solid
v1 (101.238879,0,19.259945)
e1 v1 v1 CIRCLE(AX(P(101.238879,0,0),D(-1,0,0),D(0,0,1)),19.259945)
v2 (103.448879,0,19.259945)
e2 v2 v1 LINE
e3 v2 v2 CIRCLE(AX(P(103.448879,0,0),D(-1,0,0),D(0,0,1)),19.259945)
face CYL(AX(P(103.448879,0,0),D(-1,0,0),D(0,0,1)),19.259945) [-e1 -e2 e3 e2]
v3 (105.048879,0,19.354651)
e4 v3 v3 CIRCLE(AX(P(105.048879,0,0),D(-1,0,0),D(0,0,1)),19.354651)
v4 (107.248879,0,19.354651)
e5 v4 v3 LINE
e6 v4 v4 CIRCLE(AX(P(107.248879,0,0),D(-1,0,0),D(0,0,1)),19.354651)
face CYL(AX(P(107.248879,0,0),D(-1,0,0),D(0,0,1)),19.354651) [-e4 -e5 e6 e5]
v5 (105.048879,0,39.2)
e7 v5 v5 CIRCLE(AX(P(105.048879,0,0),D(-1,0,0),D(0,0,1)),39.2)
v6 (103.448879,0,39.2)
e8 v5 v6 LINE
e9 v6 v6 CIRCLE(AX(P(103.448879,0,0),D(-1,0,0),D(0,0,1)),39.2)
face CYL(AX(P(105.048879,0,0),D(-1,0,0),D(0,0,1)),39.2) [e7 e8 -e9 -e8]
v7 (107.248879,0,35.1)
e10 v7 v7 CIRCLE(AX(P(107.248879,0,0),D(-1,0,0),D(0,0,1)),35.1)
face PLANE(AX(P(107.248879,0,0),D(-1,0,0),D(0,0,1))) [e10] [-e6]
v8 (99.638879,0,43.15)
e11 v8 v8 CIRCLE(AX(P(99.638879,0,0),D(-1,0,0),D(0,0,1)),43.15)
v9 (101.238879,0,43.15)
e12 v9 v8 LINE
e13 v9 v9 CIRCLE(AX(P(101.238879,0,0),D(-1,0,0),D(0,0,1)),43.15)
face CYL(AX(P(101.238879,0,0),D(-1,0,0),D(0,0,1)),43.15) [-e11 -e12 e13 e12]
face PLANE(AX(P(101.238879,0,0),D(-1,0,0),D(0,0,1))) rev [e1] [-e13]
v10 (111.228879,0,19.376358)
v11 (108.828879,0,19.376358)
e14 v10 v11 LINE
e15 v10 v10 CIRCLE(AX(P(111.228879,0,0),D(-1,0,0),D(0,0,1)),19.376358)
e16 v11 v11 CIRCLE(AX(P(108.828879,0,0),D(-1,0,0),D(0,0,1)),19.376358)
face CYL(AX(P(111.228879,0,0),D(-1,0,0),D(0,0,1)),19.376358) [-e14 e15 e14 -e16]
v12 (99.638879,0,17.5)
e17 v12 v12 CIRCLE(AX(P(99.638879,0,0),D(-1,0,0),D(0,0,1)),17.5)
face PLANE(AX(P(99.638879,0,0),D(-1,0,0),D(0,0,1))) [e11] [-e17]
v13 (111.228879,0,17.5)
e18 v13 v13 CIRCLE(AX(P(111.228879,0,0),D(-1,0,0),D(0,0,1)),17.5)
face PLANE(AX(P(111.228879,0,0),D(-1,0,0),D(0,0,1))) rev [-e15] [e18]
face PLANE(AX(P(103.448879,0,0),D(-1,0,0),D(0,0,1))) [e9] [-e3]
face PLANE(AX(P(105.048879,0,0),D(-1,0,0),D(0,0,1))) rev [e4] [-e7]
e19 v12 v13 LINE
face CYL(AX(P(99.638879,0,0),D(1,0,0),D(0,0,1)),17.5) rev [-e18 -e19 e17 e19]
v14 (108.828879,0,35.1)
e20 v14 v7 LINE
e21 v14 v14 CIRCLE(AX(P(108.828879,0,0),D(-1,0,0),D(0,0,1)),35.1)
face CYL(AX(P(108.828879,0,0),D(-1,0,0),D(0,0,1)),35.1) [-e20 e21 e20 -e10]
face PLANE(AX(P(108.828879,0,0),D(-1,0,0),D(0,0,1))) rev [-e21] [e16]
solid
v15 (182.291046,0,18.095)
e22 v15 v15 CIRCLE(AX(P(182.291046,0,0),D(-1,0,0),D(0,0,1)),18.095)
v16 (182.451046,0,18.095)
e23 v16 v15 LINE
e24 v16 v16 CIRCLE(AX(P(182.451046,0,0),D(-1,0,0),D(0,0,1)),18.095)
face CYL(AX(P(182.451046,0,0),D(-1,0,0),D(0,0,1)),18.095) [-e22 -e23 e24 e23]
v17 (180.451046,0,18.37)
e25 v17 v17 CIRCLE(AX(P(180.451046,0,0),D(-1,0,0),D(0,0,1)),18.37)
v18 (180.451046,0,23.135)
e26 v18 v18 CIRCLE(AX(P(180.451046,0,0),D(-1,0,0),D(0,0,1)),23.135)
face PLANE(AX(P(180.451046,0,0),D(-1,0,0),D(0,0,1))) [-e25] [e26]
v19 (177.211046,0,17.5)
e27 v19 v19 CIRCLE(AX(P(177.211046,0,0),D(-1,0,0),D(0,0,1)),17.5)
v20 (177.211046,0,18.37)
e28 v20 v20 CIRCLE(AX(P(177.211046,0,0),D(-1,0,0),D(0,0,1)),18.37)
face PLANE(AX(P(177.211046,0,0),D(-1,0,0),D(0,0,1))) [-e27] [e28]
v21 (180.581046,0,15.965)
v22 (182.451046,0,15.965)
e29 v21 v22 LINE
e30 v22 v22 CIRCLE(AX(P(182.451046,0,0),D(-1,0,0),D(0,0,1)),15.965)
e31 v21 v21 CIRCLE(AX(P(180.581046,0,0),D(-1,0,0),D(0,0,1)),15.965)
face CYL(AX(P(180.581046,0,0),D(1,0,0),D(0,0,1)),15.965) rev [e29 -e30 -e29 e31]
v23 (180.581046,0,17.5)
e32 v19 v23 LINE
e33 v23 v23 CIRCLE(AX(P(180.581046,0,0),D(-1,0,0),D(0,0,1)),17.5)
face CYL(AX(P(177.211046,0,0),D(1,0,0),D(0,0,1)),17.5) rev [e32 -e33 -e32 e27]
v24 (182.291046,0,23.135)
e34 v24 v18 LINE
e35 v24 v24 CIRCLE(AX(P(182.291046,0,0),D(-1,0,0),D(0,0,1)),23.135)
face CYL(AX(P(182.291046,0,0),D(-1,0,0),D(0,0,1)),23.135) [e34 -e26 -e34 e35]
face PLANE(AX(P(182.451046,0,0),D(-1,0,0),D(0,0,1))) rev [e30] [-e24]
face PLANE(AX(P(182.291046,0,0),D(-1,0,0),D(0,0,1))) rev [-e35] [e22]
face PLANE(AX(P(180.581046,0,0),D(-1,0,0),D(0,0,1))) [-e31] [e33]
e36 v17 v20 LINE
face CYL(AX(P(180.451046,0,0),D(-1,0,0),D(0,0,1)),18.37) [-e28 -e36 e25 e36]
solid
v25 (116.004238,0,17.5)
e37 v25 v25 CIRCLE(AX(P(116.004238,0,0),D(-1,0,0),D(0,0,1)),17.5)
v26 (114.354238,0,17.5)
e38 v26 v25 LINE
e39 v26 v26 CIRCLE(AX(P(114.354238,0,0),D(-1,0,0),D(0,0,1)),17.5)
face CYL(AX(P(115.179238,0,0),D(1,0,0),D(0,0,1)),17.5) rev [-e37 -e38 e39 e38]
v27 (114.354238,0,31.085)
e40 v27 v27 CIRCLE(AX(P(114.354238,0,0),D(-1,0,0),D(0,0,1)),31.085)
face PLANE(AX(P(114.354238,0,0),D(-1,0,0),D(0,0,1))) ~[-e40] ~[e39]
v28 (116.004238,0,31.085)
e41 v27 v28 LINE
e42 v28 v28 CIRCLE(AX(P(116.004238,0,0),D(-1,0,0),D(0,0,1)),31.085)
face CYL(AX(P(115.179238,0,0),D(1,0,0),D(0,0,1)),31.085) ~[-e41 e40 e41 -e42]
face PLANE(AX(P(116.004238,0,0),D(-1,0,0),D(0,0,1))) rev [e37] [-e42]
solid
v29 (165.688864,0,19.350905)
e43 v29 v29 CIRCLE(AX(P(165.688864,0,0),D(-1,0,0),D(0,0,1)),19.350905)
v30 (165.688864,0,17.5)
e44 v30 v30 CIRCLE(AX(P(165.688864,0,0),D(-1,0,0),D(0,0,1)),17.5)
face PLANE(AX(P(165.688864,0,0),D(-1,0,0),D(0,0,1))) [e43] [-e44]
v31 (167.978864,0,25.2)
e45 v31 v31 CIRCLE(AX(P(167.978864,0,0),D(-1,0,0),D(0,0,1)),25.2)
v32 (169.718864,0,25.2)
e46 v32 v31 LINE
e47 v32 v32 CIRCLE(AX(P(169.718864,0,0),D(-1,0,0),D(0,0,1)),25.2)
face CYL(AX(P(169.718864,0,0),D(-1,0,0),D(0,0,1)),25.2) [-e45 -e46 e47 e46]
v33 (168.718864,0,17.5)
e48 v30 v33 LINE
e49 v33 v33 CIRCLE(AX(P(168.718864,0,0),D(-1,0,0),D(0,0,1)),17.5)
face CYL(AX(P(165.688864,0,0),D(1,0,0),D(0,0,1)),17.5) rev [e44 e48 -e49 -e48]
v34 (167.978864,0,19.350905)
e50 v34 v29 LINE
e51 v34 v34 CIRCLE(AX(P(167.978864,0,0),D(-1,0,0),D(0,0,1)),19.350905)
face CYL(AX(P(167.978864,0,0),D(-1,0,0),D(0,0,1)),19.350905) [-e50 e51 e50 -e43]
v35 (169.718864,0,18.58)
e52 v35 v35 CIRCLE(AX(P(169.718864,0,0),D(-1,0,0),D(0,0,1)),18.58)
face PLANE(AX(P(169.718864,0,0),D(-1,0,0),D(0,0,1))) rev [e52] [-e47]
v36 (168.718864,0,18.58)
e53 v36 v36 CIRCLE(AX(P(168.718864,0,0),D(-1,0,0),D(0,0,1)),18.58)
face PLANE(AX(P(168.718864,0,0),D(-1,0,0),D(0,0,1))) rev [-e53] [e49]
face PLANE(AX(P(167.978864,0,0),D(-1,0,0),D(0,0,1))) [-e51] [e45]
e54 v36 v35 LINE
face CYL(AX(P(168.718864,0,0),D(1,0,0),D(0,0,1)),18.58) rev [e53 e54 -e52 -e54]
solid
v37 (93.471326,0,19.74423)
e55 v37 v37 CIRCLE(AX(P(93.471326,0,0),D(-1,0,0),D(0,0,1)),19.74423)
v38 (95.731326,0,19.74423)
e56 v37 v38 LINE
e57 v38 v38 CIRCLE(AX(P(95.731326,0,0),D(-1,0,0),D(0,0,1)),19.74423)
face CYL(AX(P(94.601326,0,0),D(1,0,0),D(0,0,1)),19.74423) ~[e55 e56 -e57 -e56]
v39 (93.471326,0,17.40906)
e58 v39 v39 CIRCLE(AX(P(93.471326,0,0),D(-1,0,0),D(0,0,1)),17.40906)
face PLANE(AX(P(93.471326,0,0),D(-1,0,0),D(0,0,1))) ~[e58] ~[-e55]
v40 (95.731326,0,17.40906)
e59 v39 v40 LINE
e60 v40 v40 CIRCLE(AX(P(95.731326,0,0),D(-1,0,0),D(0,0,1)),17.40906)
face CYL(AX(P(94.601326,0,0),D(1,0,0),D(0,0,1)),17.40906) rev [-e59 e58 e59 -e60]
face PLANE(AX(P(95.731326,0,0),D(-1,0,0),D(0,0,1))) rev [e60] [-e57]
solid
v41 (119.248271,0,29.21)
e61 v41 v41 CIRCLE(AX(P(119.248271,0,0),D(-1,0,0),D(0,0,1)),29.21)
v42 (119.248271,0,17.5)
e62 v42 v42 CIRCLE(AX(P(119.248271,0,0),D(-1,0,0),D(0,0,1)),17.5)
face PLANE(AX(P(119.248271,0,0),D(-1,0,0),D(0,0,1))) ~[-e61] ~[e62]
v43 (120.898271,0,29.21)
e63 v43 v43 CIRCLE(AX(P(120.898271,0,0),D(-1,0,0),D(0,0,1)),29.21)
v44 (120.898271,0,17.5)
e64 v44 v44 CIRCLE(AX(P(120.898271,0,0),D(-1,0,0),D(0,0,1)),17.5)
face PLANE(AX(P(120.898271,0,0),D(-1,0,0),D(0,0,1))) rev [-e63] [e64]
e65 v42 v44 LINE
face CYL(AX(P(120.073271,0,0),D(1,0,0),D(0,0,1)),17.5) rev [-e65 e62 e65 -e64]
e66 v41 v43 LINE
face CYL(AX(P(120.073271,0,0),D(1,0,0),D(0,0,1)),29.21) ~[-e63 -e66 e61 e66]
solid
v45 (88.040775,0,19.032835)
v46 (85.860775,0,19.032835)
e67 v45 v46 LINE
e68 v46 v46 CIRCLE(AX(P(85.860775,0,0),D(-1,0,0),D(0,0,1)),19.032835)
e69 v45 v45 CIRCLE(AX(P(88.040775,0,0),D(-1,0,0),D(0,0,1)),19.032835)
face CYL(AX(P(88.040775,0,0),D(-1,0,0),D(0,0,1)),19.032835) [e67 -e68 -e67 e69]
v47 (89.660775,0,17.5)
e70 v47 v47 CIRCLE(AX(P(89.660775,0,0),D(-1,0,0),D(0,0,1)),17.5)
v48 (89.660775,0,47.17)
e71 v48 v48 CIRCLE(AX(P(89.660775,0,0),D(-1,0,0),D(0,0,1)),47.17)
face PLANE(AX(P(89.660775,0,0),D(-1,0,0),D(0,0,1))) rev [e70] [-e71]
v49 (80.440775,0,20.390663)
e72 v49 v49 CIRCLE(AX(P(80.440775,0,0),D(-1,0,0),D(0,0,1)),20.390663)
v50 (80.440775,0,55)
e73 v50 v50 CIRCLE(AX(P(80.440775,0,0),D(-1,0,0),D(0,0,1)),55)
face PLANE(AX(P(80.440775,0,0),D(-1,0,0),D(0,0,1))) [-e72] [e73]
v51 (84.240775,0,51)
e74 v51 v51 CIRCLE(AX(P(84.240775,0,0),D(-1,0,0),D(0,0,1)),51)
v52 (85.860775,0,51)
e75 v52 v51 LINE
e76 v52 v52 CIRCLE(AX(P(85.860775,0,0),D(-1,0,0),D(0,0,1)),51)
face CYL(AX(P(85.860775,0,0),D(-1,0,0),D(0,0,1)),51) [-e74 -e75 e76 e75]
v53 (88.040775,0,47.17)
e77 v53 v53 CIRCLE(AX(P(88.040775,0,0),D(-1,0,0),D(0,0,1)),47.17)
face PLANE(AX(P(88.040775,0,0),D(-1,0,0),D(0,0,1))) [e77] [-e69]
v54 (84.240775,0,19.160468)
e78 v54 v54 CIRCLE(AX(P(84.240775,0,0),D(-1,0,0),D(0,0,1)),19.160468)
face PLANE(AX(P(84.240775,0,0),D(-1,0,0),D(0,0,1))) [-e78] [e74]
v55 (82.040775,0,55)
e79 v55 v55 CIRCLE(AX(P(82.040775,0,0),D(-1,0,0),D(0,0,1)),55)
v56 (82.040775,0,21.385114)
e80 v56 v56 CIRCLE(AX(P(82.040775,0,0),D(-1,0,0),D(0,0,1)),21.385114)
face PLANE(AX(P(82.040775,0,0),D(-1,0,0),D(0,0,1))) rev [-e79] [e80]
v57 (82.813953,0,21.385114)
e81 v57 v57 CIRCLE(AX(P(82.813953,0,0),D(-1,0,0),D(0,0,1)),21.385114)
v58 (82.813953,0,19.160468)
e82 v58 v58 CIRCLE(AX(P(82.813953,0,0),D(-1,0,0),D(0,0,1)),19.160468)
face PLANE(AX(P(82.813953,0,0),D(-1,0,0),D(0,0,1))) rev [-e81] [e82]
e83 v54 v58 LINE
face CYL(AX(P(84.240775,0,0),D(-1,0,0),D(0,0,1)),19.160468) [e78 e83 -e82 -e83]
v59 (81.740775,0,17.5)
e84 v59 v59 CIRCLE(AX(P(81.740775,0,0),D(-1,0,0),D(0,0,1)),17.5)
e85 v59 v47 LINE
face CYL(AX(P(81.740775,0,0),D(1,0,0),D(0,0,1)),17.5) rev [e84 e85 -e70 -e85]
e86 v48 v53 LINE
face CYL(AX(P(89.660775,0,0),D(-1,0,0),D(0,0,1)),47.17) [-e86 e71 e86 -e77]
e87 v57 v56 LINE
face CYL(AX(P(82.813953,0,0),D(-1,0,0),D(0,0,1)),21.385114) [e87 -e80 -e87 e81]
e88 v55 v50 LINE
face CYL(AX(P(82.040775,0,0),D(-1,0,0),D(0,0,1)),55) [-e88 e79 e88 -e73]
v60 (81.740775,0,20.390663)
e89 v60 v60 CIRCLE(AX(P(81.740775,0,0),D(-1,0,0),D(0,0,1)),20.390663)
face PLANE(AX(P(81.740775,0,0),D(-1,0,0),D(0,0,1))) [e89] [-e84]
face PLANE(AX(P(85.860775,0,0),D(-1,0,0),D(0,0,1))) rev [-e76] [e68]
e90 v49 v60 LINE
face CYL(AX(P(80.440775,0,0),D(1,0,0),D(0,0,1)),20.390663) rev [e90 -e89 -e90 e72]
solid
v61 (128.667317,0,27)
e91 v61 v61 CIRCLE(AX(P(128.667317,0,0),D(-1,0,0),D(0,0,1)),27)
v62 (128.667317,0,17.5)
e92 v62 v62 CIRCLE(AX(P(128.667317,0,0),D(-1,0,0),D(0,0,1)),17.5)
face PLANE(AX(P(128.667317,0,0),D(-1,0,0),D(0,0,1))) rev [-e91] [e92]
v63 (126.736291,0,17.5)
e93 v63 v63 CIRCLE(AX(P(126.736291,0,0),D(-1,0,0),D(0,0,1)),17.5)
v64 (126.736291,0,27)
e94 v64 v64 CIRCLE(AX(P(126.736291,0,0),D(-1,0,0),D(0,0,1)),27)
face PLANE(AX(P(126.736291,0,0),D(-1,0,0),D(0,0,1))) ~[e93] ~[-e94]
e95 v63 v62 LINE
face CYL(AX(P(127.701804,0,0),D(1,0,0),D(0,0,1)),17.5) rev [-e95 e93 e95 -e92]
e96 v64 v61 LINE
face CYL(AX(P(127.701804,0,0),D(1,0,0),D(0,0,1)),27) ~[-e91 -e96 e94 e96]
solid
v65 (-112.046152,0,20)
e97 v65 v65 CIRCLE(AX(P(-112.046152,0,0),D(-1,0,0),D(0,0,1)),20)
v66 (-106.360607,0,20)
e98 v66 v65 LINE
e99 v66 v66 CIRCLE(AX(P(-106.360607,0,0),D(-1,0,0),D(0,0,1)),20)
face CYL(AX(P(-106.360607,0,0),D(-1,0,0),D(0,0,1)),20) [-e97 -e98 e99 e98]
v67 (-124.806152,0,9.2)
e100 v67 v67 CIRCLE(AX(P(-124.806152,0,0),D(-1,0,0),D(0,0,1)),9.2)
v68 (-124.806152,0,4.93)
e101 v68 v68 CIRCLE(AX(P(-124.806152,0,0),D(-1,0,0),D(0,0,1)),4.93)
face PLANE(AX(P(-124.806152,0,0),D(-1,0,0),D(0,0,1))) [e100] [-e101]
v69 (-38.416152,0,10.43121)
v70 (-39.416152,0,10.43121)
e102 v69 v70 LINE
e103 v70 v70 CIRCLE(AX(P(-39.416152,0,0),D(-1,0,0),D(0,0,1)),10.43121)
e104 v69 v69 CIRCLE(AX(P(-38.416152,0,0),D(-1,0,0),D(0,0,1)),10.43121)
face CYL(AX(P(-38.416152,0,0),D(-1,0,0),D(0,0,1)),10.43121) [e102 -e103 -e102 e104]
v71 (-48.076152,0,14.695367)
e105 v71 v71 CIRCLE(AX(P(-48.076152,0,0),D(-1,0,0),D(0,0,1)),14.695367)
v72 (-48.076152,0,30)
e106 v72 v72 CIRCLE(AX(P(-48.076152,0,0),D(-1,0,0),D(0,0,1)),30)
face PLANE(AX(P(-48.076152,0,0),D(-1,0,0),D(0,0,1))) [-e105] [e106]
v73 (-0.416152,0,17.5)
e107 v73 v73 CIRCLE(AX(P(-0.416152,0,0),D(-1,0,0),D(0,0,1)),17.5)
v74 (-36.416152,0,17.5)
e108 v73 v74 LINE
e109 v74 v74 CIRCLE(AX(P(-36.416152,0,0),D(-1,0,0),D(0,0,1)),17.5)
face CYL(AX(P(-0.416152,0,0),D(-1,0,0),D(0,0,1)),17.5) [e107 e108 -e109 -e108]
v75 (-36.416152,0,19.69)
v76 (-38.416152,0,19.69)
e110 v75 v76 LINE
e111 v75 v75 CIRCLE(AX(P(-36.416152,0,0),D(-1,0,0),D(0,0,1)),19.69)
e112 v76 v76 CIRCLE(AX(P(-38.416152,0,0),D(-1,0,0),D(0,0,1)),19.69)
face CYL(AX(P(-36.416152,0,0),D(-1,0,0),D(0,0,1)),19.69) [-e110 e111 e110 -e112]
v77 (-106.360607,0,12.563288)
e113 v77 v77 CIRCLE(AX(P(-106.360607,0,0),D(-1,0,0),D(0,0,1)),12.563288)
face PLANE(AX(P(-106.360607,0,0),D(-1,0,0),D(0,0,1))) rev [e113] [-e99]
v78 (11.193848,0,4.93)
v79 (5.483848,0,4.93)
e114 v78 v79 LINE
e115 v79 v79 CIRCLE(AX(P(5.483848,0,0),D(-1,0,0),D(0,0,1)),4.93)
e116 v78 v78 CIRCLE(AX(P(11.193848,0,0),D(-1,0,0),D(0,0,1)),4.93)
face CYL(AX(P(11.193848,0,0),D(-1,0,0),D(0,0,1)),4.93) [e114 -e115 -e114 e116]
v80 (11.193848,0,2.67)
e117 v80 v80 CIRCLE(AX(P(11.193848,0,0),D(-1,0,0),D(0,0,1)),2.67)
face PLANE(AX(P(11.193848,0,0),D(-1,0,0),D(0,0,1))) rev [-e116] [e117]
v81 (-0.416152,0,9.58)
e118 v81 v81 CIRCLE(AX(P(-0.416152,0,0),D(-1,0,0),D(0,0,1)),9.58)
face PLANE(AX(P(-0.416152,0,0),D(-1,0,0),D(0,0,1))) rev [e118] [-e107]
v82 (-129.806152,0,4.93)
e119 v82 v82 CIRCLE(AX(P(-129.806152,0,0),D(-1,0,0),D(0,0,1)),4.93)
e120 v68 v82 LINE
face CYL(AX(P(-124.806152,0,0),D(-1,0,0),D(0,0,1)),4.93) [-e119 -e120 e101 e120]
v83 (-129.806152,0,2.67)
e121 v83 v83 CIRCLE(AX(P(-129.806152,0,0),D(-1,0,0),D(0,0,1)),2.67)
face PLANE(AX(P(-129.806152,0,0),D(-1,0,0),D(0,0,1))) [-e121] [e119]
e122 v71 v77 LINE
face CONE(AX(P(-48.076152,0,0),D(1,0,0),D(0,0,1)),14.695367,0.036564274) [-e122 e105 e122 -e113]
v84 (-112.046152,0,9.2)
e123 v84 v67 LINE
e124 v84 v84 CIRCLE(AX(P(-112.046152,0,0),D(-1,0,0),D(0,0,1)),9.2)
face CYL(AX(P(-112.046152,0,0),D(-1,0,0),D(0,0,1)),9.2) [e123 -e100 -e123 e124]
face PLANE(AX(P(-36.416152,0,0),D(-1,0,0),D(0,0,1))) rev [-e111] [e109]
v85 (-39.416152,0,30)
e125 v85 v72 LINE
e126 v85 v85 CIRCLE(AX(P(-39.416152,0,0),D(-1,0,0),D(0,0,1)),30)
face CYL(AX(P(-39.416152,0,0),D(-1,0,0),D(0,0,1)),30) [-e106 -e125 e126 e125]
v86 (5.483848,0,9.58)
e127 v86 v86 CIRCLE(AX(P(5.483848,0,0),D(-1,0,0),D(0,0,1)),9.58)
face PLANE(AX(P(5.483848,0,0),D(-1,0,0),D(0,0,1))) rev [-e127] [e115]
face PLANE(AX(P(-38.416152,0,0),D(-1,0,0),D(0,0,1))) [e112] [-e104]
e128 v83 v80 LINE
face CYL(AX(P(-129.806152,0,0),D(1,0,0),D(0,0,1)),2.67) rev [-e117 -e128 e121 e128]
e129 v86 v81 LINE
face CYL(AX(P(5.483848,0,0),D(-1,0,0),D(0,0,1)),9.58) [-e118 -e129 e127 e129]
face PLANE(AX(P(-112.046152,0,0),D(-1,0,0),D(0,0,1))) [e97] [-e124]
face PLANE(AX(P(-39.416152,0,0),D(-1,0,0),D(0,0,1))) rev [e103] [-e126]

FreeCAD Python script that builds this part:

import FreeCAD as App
import Part
import Sketcher

V = App.Vector

doc = App.newDocument("Part")
params = doc.addObject("Spreadsheet::Sheet", "Params")
for row, (alias, value) in enumerate([
    ("sketch1_width", "5 mm"),
    ("sketch1_width2", "141 mm"),
    ("sketch1_width3", "36 mm"),
    ("sketch1_width4", "2 mm"),
    ("sketch1_width5", "1 mm"),
    ("revolution_angle", "360 deg"),
    ("sketch2_width", "1.6 mm"),
    ("sketch2_width2", "1.3 mm"),
    ("sketch2_width3", "7.92 mm"),
    ("sketch2_width4", "2.18 mm"),
    ("sketch2_height", "29.67 mm"),
    ("revolution2_angle", "360 deg"),
    ("sketch3_width", "2.4 mm"),
    ("sketch3_width2", "2.2 mm"),
    ("sketch3_width3", "1.6 mm"),
    ("sketch3_width4", "11.59 mm"),
    ("sketch3_width5", "1.58 mm"),
    ("revolution3_angle", "360 deg"),
    ("sketch4_width", "2.26 mm"),
    ("revolution4_angle", "360 deg"),
    ("sketch5_width", "1.65 mm"),
    ("revolution5_angle", "360 deg"),
    ("sketch6_width", "1.65 mm"),
    ("sketch6_height", "11.71 mm"),
    ("revolution6_angle", "360 deg"),
    ("sketch7_height", "9.5 mm"),
    ("revolution7_angle", "360 deg"),
    ("sketch8_width", "1 mm"),
    ("sketch8_width2", "2.29 mm"),
    ("sketch8_width3", "3.03 mm"),
    ("sketch8_height", "1.08 mm"),
    ("sketch8_height2", "6.62 mm"),
    ("revolution8_angle", "360 deg"),
    ("sketch9_width", "3.24 mm"),
    ("sketch9_width2", "3.37 mm"),
    ("sketch9_width3", "0.16 mm"),
    ("sketch9_height", "0.87 mm"),
    ("sketch9_height2", "2.13 mm"),
    ("revolution9_angle", "360 deg"),
], start=1):
    params.set(f"A{row}", alias)
    params.set(f"B{row}", "=" + value)
    params.setAlias(f"B{row}", alias)

body = doc.addObject("PartDesign::Body", "Body")

# Sketch on XZ plane
sketch1 = doc.addObject("Sketcher::SketchObject", "Sketch")
body.addObject(sketch1)
sketch1.AttachmentSupport = (doc.XZ_Plane, [""])
sketch1.MapMode = "FlatFace"
sketch1.addGeometry(Part.LineSegment(V(-124.8, 4.9, 0), V(-129.8, 4.9, 0)), False)
sketch1.addGeometry(Part.LineSegment(V(-129.8, 4.9, 0), V(-129.8, 2.7, 0)), False)
sketch1.addGeometry(Part.LineSegment(V(-129.8, 2.7, 0), V(11.2, 2.7, 0)), False)
sketch1.addGeometry(Part.LineSegment(V(11.2, 2.7, 0), V(11.2, 4.9, 0)), False)
sketch1.addGeometry(Part.LineSegment(V(11.2, 4.9, 0), V(5.5, 4.9, 0)), False)
sketch1.addGeometry(Part.LineSegment(V(5.5, 4.9, 0), V(5.5, 9.6, 0)), False)
sketch1.addGeometry(Part.LineSegment(V(5.5, 9.6, 0), V(-0.4, 9.6, 0)), False)
sketch1.addGeometry(Part.LineSegment(V(-0.4, 9.6, 0), V(-0.4, 17.5, 0)), False)
sketch1.addGeometry(Part.LineSegment(V(-0.4, 17.5, 0), V(-36.4, 17.5, 0)), False)
sketch1.addGeometry(Part.LineSegment(V(-36.4, 17.5, 0), V(-36.4, 19.7, 0)), False)
sketch1.addGeometry(Part.LineSegment(V(-36.4, 19.7, 0), V(-38.4, 19.7, 0)), False)
sketch1.addGeometry(Part.LineSegment(V(-38.4, 19.7, 0), V(-38.4, 10.4, 0)), False)
sketch1.addGeometry(Part.LineSegment(V(-38.4, 10.4, 0), V(-39.4, 10.4, 0)), False)
sketch1.addGeometry(Part.LineSegment(V(-39.4, 10.4, 0), V(-39.4, 30, 0)), False)
sketch1.addGeometry(Part.LineSegment(V(-39.4, 30, 0), V(-48.1, 30, 0)), False)
sketch1.addGeometry(Part.LineSegment(V(-48.1, 30, 0), V(-48.1, 14.7, 0)), False)
sketch1.addGeometry(Part.LineSegment(V(-48.1, 14.7, 0), V(-106.4, 12.6, 0)), False)
sketch1.addGeometry(Part.LineSegment(V(-106.4, 12.6, 0), V(-106.4, 20, 0)), False)
sketch1.addGeometry(Part.LineSegment(V(-106.4, 20, 0), V(-112, 20, 0)), False)
sketch1.addGeometry(Part.LineSegment(V(-112, 20, 0), V(-112, 9.2, 0)), False)
sketch1.addGeometry(Part.LineSegment(V(-112, 9.2, 0), V(-124.8, 9.2, 0)), False)
sketch1.addGeometry(Part.LineSegment(V(-124.8, 9.2, 0), V(-124.8, 4.9, 0)), False)
sketch1.addConstraint(Sketcher.Constraint("Coincident", 0, 2, 1, 1))
sketch1.addConstraint(Sketcher.Constraint("Coincident", 1, 2, 2, 1))
sketch1.addConstraint(Sketcher.Constraint("Coincident", 2, 2, 3, 1))
sketch1.addConstraint(Sketcher.Constraint("Coincident", 3, 2, 4, 1))
sketch1.addConstraint(Sketcher.Constraint("Coincident", 4, 2, 5, 1))
sketch1.addConstraint(Sketcher.Constraint("Coincident", 5, 2, 6, 1))
sketch1.addConstraint(Sketcher.Constraint("Coincident", 6, 2, 7, 1))
sketch1.addConstraint(Sketcher.Constraint("Coincident", 7, 2, 8, 1))
sketch1.addConstraint(Sketcher.Constraint("Coincident", 8, 2, 9, 1))
sketch1.addConstraint(Sketcher.Constraint("Coincident", 9, 2, 10, 1))
sketch1.addConstraint(Sketcher.Constraint("Coincident", 10, 2, 11, 1))
sketch1.addConstraint(Sketcher.Constraint("Coincident", 11, 2, 12, 1))
sketch1.addConstraint(Sketcher.Constraint("Coincident", 12, 2, 13, 1))
sketch1.addConstraint(Sketcher.Constraint("Coincident", 13, 2, 14, 1))
sketch1.addConstraint(Sketcher.Constraint("Coincident", 14, 2, 15, 1))
sketch1.addConstraint(Sketcher.Constraint("Coincident", 15, 2, 16, 1))
sketch1.addConstraint(Sketcher.Constraint("Coincident", 16, 2, 17, 1))
sketch1.addConstraint(Sketcher.Constraint("Coincident", 17, 2, 18, 1))
sketch1.addConstraint(Sketcher.Constraint("Coincident", 18, 2, 19, 1))
sketch1.addConstraint(Sketcher.Constraint("Coincident", 19, 2, 20, 1))
sketch1.addConstraint(Sketcher.Constraint("Coincident", 20, 2, 21, 1))
sketch1.addConstraint(Sketcher.Constraint("Coincident", 21, 2, 0, 1))
sketch1.addConstraint(Sketcher.Constraint("Horizontal", 0))
sketch1.addConstraint(Sketcher.Constraint("Vertical", 1))
sketch1.addConstraint(Sketcher.Constraint("Horizontal", 2))
sketch1.addConstraint(Sketcher.Constraint("Vertical", 3))
sketch1.addConstraint(Sketcher.Constraint("Horizontal", 4))
sketch1.addConstraint(Sketcher.Constraint("Vertical", 5))
sketch1.addConstraint(Sketcher.Constraint("Horizontal", 6))
sketch1.addConstraint(Sketcher.Constraint("Vertical", 7))
sketch1.addConstraint(Sketcher.Constraint("Horizontal", 8))
sketch1.addConstraint(Sketcher.Constraint("Vertical", 9))
sketch1.addConstraint(Sketcher.Constraint("Horizontal", 10))
sketch1.addConstraint(Sketcher.Constraint("Vertical", 11))
sketch1.addConstraint(Sketcher.Constraint("Horizontal", 12))
sketch1.addConstraint(Sketcher.Constraint("Vertical", 13))
sketch1.addConstraint(Sketcher.Constraint("Horizontal", 14))
sketch1.addConstraint(Sketcher.Constraint("Vertical", 15))
sketch1.addConstraint(Sketcher.Constraint("Vertical", 17))
sketch1.addConstraint(Sketcher.Constraint("Horizontal", 18))
sketch1.addConstraint(Sketcher.Constraint("Vertical", 19))
sketch1.addConstraint(Sketcher.Constraint("Horizontal", 20))
sketch1.addConstraint(Sketcher.Constraint("Vertical", 21))
sketch1.addConstraint(Sketcher.Constraint("Horizontal", 0, 2, 3, 2))
sketch1.addConstraint(Sketcher.Constraint("DistanceX", 0, 2, 0, 1, 5.0))
sketch1.addConstraint(Sketcher.Constraint("DistanceX", 2, 1, 2, 2, 141.0))
sketch1.addConstraint(Sketcher.Constraint("DistanceX", 8, 2, 8, 1, 36.0))
sketch1.addConstraint(Sketcher.Constraint("DistanceX", 10, 2, 10, 1, 2.0))
sketch1.addConstraint(Sketcher.Constraint("DistanceX", 12, 2, 12, 1, 1.0))
sketch1.addConstraint(Sketcher.Constraint("DistanceX", 6, 2, 6, 1, 5.9))
sketch1.addConstraint(Sketcher.Constraint("DistanceY", 19, 2, 19, 1, 10.8))
sketch1.addConstraint(Sketcher.Constraint("DistanceY", -1, 1, 13, 2, 30.0))
sketch1.addConstraint(Sketcher.Constraint("DistanceY", -1, 1, 17, 2, 20.0))
sketch1.addConstraint(Sketcher.Constraint("DistanceX", 4, 2, 4, 1, 5.71))
sketch1.addConstraint(Sketcher.Constraint("DistanceX", 14, 2, 14, 1, 8.66))
sketch1.addConstraint(Sketcher.Constraint("DistanceX", 20, 2, 20, 1, 12.76))
sketch1.addConstraint(Sketcher.Constraint("DistanceY", 1, 2, 1, 1, 2.26))
sketch1.addConstraint(Sketcher.Constraint("DistanceY", 5, 1, 5, 2, 4.65))
sketch1.addConstraint(Sketcher.Constraint("DistanceY", 7, 1, 7, 2, 7.92))
sketch1.addConstraint(Sketcher.Constraint("DistanceY", 9, 1, 9, 2, 2.19))
sketch1.addConstraint(Sketcher.Constraint("DistanceY", 21, 2, 21, 1, 4.27))
sketch1.addConstraint(Sketcher.Constraint("DistanceY", 11, 2, 11, 1, 9.25879))
sketch1.addConstraint(Sketcher.Constraint("Distance", 16, 58.323438))
sketch1.addConstraint(Sketcher.Constraint("DistanceX", 18, 2, 18, 1, 5.685545))
sketch1.addConstraint(Sketcher.Constraint("DistanceY", 15, 2, 15, 1, 15.304633))
sketch1.addConstraint(Sketcher.Constraint("DistanceX", 0, 2, -1, 1, 129.806152))
sketch1.setExpression("Constraints[44]", "Params.sketch1_width")
sketch1.setExpression("Constraints[45]", "Params.sketch1_width2")
sketch1.setExpression("Constraints[46]", "Params.sketch1_width3")
sketch1.setExpression("Constraints[47]", "Params.sketch1_width4")
sketch1.setExpression("Constraints[48]", "Params.sketch1_width5")
revolution = doc.addObject("PartDesign::Revolution", "Revolution")
body.addObject(revolution)
revolution.Profile = sketch1
revolution.ReferenceAxis = (sketch1, ["H_Axis"])
revolution.setExpression("Angle", "Params.revolution_angle")
body2 = doc.addObject("PartDesign::Body", "Body001")

# Sketch on XZ plane
sketch2 = doc.addObject("Sketcher::SketchObject", "Sketch001")
body2.addObject(sketch2)
sketch2.AttachmentSupport = (doc.getObject("XZ_Plane001"), [""])
sketch2.MapMode = "FlatFace"
sketch2.addGeometry(Part.LineSegment(V(81.7, 17.5, 0), V(89.7, 17.5, 0)), False)
sketch2.addGeometry(Part.LineSegment(V(89.7, 17.5, 0), V(89.7, 47.2, 0)), False)
sketch2.addGeometry(Part.LineSegment(V(89.7, 47.2, 0), V(88, 47.2, 0)), False)
sketch2.addGeometry(Part.LineSegment(V(88, 47.2, 0), V(88, 19, 0)), False)
sketch2.addGeometry(Part.LineSegment(V(88, 19, 0), V(85.9, 19, 0)), False)
sketch2.addGeometry(Part.LineSegment(V(85.9, 19, 0), V(85.9, 51, 0)), False)
sketch2.addGeometry(Part.LineSegment(V(85.9, 51, 0), V(84.2, 51, 0)), False)
sketch2.addGeometry(Part.LineSegment(V(84.2, 51, 0), V(84.2, 19.2, 0)), False)
sketch2.addGeometry(Part.LineSegment(V(84.2, 19.2, 0), V(82.8, 19.2, 0)), False)
sketch2.addGeometry(Part.LineSegment(V(82.8, 19.2, 0), V(82.8, 21.4, 0)), False)
sketch2.addGeometry(Part.LineSegment(V(82.8, 21.4, 0), V(82, 21.4, 0)), False)
sketch2.addGeometry(Part.LineSegment(V(82, 21.4, 0), V(82, 55, 0)), False)
sketch2.addGeometry(Part.LineSegment(V(82, 55, 0), V(80.4, 55, 0)), False)
sketch2.addGeometry(Part.LineSegment(V(80.4, 55, 0), V(80.4, 20.4, 0)), False)
sketch2.addGeometry(Part.LineSegment(V(80.4, 20.4, 0), V(81.7, 20.4, 0)), False)
sketch2.addGeometry(Part.LineSegment(V(81.7, 20.4, 0), V(81.7, 17.5, 0)), False)
sketch2.addConstraint(Sketcher.Constraint("Coincident", 0, 2, 1, 1))
sketch2.addConstraint(Sketcher.Constraint("Coincident", 1, 2, 2, 1))
sketch2.addConstraint(Sketcher.Constraint("Coincident", 2, 2, 3, 1))
sketch2.addConstraint(Sketcher.Constraint("Coincident", 3, 2, 4, 1))
sketch2.addConstraint(Sketcher.Constraint("Coincident", 4, 2, 5, 1))
sketch2.addConstraint(Sketcher.Constraint("Coincident", 5, 2, 6, 1))
sketch2.addConstraint(Sketcher.Constraint("Coincident", 6, 2, 7, 1))
sketch2.addConstraint(Sketcher.Constraint("Coincident", 7, 2, 8, 1))
sketch2.addConstraint(Sketcher.Constraint("Coincident", 8, 2, 9, 1))
sketch2.addConstraint(Sketcher.Constraint("Coincident", 9, 2, 10, 1))
sketch2.addConstraint(Sketcher.Constraint("Coincident", 10, 2, 11, 1))
sketch2.addConstraint(Sketcher.Constraint("Coincident", 11, 2, 12, 1))
sketch2.addConstraint(Sketcher.Constraint("Coincident", 12, 2, 13, 1))
sketch2.addConstraint(Sketcher.Constraint("Coincident", 13, 2, 14, 1))
sketch2.addConstraint(Sketcher.Constraint("Coincident", 14, 2, 15, 1))
sketch2.addConstraint(Sketcher.Constraint("Coincident", 15, 2, 0, 1))
sketch2.addConstraint(Sketcher.Constraint("Horizontal", 0))
sketch2.addConstraint(Sketcher.Constraint("Vertical", 1))
sketch2.addConstraint(Sketcher.Constraint("Horizontal", 2))
sketch2.addConstraint(Sketcher.Constraint("Vertical", 3))
sketch2.addConstraint(Sketcher.Constraint("Horizontal", 4))
sketch2.addConstraint(Sketcher.Constraint("Vertical", 5))
sketch2.addConstraint(Sketcher.Constraint("Horizontal", 6))
sketch2.addConstraint(Sketcher.Constraint("Vertical", 7))
sketch2.addConstraint(Sketcher.Constraint("Horizontal", 8))
sketch2.addConstraint(Sketcher.Constraint("Vertical", 9))
sketch2.addConstraint(Sketcher.Constraint("Horizontal", 10))
sketch2.addConstraint(Sketcher.Constraint("Vertical", 11))
sketch2.addConstraint(Sketcher.Constraint("Horizontal", 12))
sketch2.addConstraint(Sketcher.Constraint("Vertical", 13))
sketch2.addConstraint(Sketcher.Constraint("Horizontal", 14))
sketch2.addConstraint(Sketcher.Constraint("Vertical", 15))
sketch2.addConstraint(Sketcher.Constraint("Equal", 2, 6))
sketch2.addConstraint(Sketcher.Constraint("DistanceX", 12, 2, 12, 1, 1.6))
sketch2.addConstraint(Sketcher.Constraint("DistanceX", 14, 1, 14, 2, 1.3))
sketch2.addConstraint(Sketcher.Constraint("DistanceY", -1, 1, 5, 2, 51.0))
sketch2.addConstraint(Sketcher.Constraint("DistanceY", -1, 1, 11, 2, 55.0))
sketch2.addConstraint(Sketcher.Constraint("DistanceX", 10, 2, 3, 2, 6.0))
sketch2.addConstraint(Sketcher.Constraint("DistanceX", 0, 1, 0, 2, 7.92))
sketch2.addConstraint(Sketcher.Constraint("DistanceX", 4, 2, 4, 1, 2.18))
sketch2.addConstraint(Sketcher.Constraint("DistanceY", 1, 1, 1, 2, 29.67))
sketch2.addConstraint(Sketcher.Constraint("DistanceY", -1, 1, 0, 2, 17.5))
sketch2.addConstraint(Sketcher.Constraint("DistanceX", 10, 2, 10, 1, 0.773178))
sketch2.addConstraint(Sketcher.Constraint("DistanceY", 7, 2, 7, 1, 31.839532))
sketch2.addConstraint(Sketcher.Constraint("DistanceY", 3, 2, 3, 1, 28.137165))
sketch2.addConstraint(Sketcher.Constraint("DistanceY", 9, 1, 9, 2, 2.224646))
sketch2.addConstraint(Sketcher.Constraint("DistanceY", 13, 2, 13, 1, 34.609337))
sketch2.addConstraint(Sketcher.Constraint("DistanceX", -1, 1, 0, 2, 89.660775))
sketch2.setExpression("Constraints[33]", "Params.sketch2_width")
sketch2.setExpression("Constraints[34]", "Params.sketch2_width2")
sketch2.setExpression("Constraints[38]", "Params.sketch2_width3")
sketch2.setExpression("Constraints[39]", "Params.sketch2_width4")
sketch2.setExpression("Constraints[40]", "Params.sketch2_height")
revolution2 = doc.addObject("PartDesign::Revolution", "Revolution001")
body2.addObject(revolution2)
revolution2.Profile = sketch2
revolution2.ReferenceAxis = (sketch2, ["H_Axis"])
revolution2.setExpression("Angle", "Params.revolution2_angle")
body3 = doc.addObject("PartDesign::Body", "Body002")

# Sketch on XZ plane
sketch3 = doc.addObject("Sketcher::SketchObject", "Sketch002")
body3.addObject(sketch3)
sketch3.AttachmentSupport = (doc.getObject("XZ_Plane002"), [""])
sketch3.MapMode = "FlatFace"
sketch3.addGeometry(Part.LineSegment(V(99.6, 17.5, 0), V(111.2, 17.5, 0)), False)
sketch3.addGeometry(Part.LineSegment(V(111.2, 17.5, 0), V(111.2, 19.4, 0)), False)
sketch3.addGeometry(Part.LineSegment(V(111.2, 19.4, 0), V(108.8, 19.4, 0)), False)
sketch3.addGeometry(Part.LineSegment(V(108.8, 19.4, 0), V(108.8, 35.1, 0)), False)
sketch3.addGeometry(Part.LineSegment(V(108.8, 35.1, 0), V(107.2, 35.1, 0)), False)
sketch3.addGeometry(Part.LineSegment(V(107.2, 35.1, 0), V(107.2, 19.4, 0)), False)
sketch3.addGeometry(Part.LineSegment(V(107.2, 19.4, 0), V(105, 19.4, 0)), False)
sketch3.addGeometry(Part.LineSegment(V(105, 19.4, 0), V(105, 39.2, 0)), False)
sketch3.addGeometry(Part.LineSegment(V(105, 39.2, 0), V(103.4, 39.2, 0)), False)
sketch3.addGeometry(Part.LineSegment(V(103.4, 39.2, 0), V(103.4, 19.3, 0)), False)
sketch3.addGeometry(Part.LineSegment(V(103.4, 19.3, 0), V(101.2, 19.3, 0)), False)
sketch3.addGeometry(Part.LineSegment(V(101.2, 19.3, 0), V(101.2, 43.1, 0)), False)
sketch3.addGeometry(Part.LineSegment(V(101.2, 43.1, 0), V(99.6, 43.1, 0)), False)
sketch3.addGeometry(Part.LineSegment(V(99.6, 43.1, 0), V(99.6, 17.5, 0)), False)
sketch3.addConstraint(Sketcher.Constraint("Coincident", 0, 2, 1, 1))
sketch3.addConstraint(Sketcher.Constraint("Coincident", 1, 2, 2, 1))
sketch3.addConstraint(Sketcher.Constraint("Coincident", 2, 2, 3, 1))
sketch3.addConstraint(Sketcher.Constraint("Coincident", 3, 2, 4, 1))
sketch3.addConstraint(Sketcher.Constraint("Coincident", 4, 2, 5, 1))
sketch3.addConstraint(Sketcher.Constraint("Coincident", 5, 2, 6, 1))
sketch3.addConstraint(Sketcher.Constraint("Coincident", 6, 2, 7, 1))
sketch3.addConstraint(Sketcher.Constraint("Coincident", 7, 2, 8, 1))
sketch3.addConstraint(Sketcher.Constraint("Coincident", 8, 2, 9, 1))
sketch3.addConstraint(Sketcher.Constraint("Coincident", 9, 2, 10, 1))
sketch3.addConstraint(Sketcher.Constraint("Coincident", 10, 2, 11, 1))
sketch3.addConstraint(Sketcher.Constraint("Coincident", 11, 2, 12, 1))
sketch3.addConstraint(Sketcher.Constraint("Coincident", 12, 2, 13, 1))
sketch3.addConstraint(Sketcher.Constraint("Coincident", 13, 2, 0, 1))
sketch3.addConstraint(Sketcher.Constraint("Horizontal", 0))
sketch3.addConstraint(Sketcher.Constraint("Vertical", 1))
sketch3.addConstraint(Sketcher.Constraint("Horizontal", 2))
sketch3.addConstraint(Sketcher.Constraint("Vertical", 3))
sketch3.addConstraint(Sketcher.Constraint("Horizontal", 4))
sketch3.addConstraint(Sketcher.Constraint("Vertical", 5))
sketch3.addConstraint(Sketcher.Constraint("Horizontal", 6))
sketch3.addConstraint(Sketcher.Constraint("Vertical", 7))
sketch3.addConstraint(Sketcher.Constraint("Horizontal", 8))
sketch3.addConstraint(Sketcher.Constraint("Vertical", 9))
sketch3.addConstraint(Sketcher.Constraint("Horizontal", 10))
sketch3.addConstraint(Sketcher.Constraint("Vertical", 11))
sketch3.addConstraint(Sketcher.Constraint("Horizontal", 12))
sketch3.addConstraint(Sketcher.Constraint("Vertical", 13))
sketch3.addConstraint(Sketcher.Constraint("Equal", 8, 12))
sketch3.addConstraint(Sketcher.Constraint("DistanceX", 2, 2, 2, 1, 2.4))
sketch3.addConstraint(Sketcher.Constraint("DistanceX", 6, 2, 6, 1, 2.2))
sketch3.addConstraint(Sketcher.Constraint("DistanceX", 8, 2, 8, 1, 1.6))
sketch3.addConstraint(Sketcher.Constraint("DistanceX", 0, 1, 0, 2, 11.59))
sketch3.addConstraint(Sketcher.Constraint("DistanceX", 4, 2, 4, 1, 1.58))
sketch3.addConstraint(Sketcher.Constraint("DistanceY", 13, 2, 13, 1, 25.65))
sketch3.addConstraint(Sketcher.Constraint("DistanceY", -1, 1, 0, 2, 17.5))
sketch3.addConstraint(Sketcher.Constraint("DistanceY", -1, 1, 3, 2, 35.1))
sketch3.addConstraint(Sketcher.Constraint("DistanceY", -1, 1, 7, 2, 39.2))
sketch3.addConstraint(Sketcher.Constraint("DistanceY", 5, 2, 5, 1, 15.745349))
sketch3.addConstraint(Sketcher.Constraint("DistanceY", 1, 1, 1, 2, 1.876358))
sketch3.addConstraint(Sketcher.Constraint("DistanceY", 9, 2, 9, 1, 19.940055))
sketch3.addConstraint(Sketcher.Constraint("DistanceX", -1, 1, 0, 2, 111.228879))
sketch3.setExpression("Constraints[29]", "Params.sketch3_width")
sketch3.setExpression("Constraints[30]", "Params.sketch3_width2")
sketch3.setExpression("Constraints[31]", "Params.sketch3_width3")
sketch3.setExpression("Constraints[32]", "Params.sketch3_width4")
sketch3.setExpression("Constraints[33]", "Params.sketch3_width5")
revolution3 = doc.addObject("PartDesign::Revolution", "Revolution002")
body3.addObject(revolution3)
revolution3.Profile = sketch3
revolution3.ReferenceAxis = (sketch3, ["H_Axis"])
revolution3.setExpression("Angle", "Params.revolution3_angle")
body4 = doc.addObject("PartDesign::Body", "Body003")

# Sketch on XZ plane
sketch4 = doc.addObject("Sketcher::SketchObject", "Sketch003")
body4.addObject(sketch4)
sketch4.AttachmentSupport = (doc.getObject("XZ_Plane003"), [""])
sketch4.MapMode = "FlatFace"
sketch4.addGeometry(Part.LineSegment(V(93.5, 19.7, 0), V(93.5, 17.4, 0)), False)
sketch4.addGeometry(Part.LineSegment(V(93.5, 17.4, 0), V(95.7, 17.4, 0)), False)
sketch4.addGeometry(Part.LineSegment(V(95.7, 17.4, 0), V(95.7, 19.7, 0)), False)
sketch4.addGeometry(Part.LineSegment(V(95.7, 19.7, 0), V(93.5, 19.7, 0)), False)
sketch4.addConstraint(Sketcher.Constraint("Coincident", 0, 2, 1, 1))
sketch4.addConstraint(Sketcher.Constraint("Coincident", 1, 2, 2, 1))
sketch4.addConstraint(Sketcher.Constraint("Coincident", 2, 2, 3, 1))
sketch4.addConstraint(Sketcher.Constraint("Coincident", 3, 2, 0, 1))
sketch4.addConstraint(Sketcher.Constraint("Vertical", 0))
sketch4.addConstraint(Sketcher.Constraint("Horizontal", 1))
sketch4.addConstraint(Sketcher.Constraint("Vertical", 2))
sketch4.addConstraint(Sketcher.Constraint("Horizontal", 3))
sketch4.addConstraint(Sketcher.Constraint("DistanceX", 1, 1, 1, 2, 2.26))
sketch4.addConstraint(Sketcher.Constraint("DistanceY", 0, 2, 0, 1, 2.33517))
sketch4.addConstraint(Sketcher.Constraint("DistanceY", -1, 1, 0, 2, 17.40906))
sketch4.addConstraint(Sketcher.Constraint("DistanceX", -1, 1, 0, 2, 93.471326))
sketch4.setExpression("Constraints[8]", "Params.sketch4_width")
revolution4 = doc.addObject("PartDesign::Revolution", "Revolution003")
body4.addObject(revolution4)
revolution4.Profile = sketch4
revolution4.ReferenceAxis = (sketch4, ["H_Axis"])
revolution4.setExpression("Angle", "Params.revolution4_angle")
body5 = doc.addObject("PartDesign::Body", "Body004")

# Sketch on XZ plane
sketch5 = doc.addObject("Sketcher::SketchObject", "Sketch004")
body5.addObject(sketch5)
sketch5.AttachmentSupport = (doc.getObject("XZ_Plane004"), [""])
sketch5.MapMode = "FlatFace"
sketch5.addGeometry(Part.LineSegment(V(114.4, 31.1, 0), V(114.4, 17.5, 0)), False)
sketch5.addGeometry(Part.LineSegment(V(114.4, 17.5, 0), V(116, 17.5, 0)), False)
sketch5.addGeometry(Part.LineSegment(V(116, 17.5, 0), V(116, 31.1, 0)), False)
sketch5.addGeometry(Part.LineSegment(V(116, 31.1, 0), V(114.4, 31.1, 0)), False)
sketch5.addConstraint(Sketcher.Constraint("Coincident", 0, 2, 1, 1))
sketch5.addConstraint(Sketcher.Constraint("Coincident", 1, 2, 2, 1))
sketch5.addConstraint(Sketcher.Constraint("Coincident", 2, 2, 3, 1))
sketch5.addConstraint(Sketcher.Constraint("Coincident", 3, 2, 0, 1))
sketch5.addConstraint(Sketcher.Constraint("Vertical", 0))
sketch5.addConstraint(Sketcher.Constraint("Horizontal", 1))
sketch5.addConstraint(Sketcher.Constraint("Vertical", 2))
sketch5.addConstraint(Sketcher.Constraint("Horizontal", 3))
sketch5.addConstraint(Sketcher.Constraint("DistanceX", 1, 1, 1, 2, 1.65))
sketch5.addConstraint(Sketcher.Constraint("DistanceY", -1, 1, 0, 2, 17.5))
sketch5.addConstraint(Sketcher.Constraint("DistanceY", 0, 2, 0, 1, 13.585))
sketch5.addConstraint(Sketcher.Constraint("DistanceX", -1, 1, 1, 2, 116.004238))
sketch5.setExpression("Constraints[8]", "Params.sketch5_width")
revolution5 = doc.addObject("PartDesign::Revolution", "Revolution004")
body5.addObject(revolution5)
revolution5.Profile = sketch5
revolution5.ReferenceAxis = (sketch5, ["H_Axis"])
revolution5.setExpression("Angle", "Params.revolution5_angle")
body6 = doc.addObject("PartDesign::Body", "Body005")

# Sketch on XZ plane
sketch6 = doc.addObject("Sketcher::SketchObject", "Sketch005")
body6.addObject(sketch6)
sketch6.AttachmentSupport = (doc.getObject("XZ_Plane005"), [""])
sketch6.MapMode = "FlatFace"
sketch6.addGeometry(Part.LineSegment(V(119.2, 29.2, 0), V(119.2, 17.5, 0)), False)
sketch6.addGeometry(Part.LineSegment(V(119.2, 17.5, 0), V(120.9, 17.5, 0)), False)
sketch6.addGeometry(Part.LineSegment(V(120.9, 17.5, 0), V(120.9, 29.2, 0)), False)
sketch6.addGeometry(Part.LineSegment(V(120.9, 29.2, 0), V(119.2, 29.2, 0)), False)
sketch6.addConstraint(Sketcher.Constraint("Coincident", 0, 2, 1, 1))
sketch6.addConstraint(Sketcher.Constraint("Coincident", 1, 2, 2, 1))
sketch6.addConstraint(Sketcher.Constraint("Coincident", 2, 2, 3, 1))
sketch6.addConstraint(Sketcher.Constraint("Coincident", 3, 2, 0, 1))
sketch6.addConstraint(Sketcher.Constraint("Vertical", 0))
sketch6.addConstraint(Sketcher.Constraint("Horizontal", 1))
sketch6.addConstraint(Sketcher.Constraint("Vertical", 2))
sketch6.addConstraint(Sketcher.Constraint("Horizontal", 3))
sketch6.addConstraint(Sketcher.Constraint("DistanceX", 1, 1, 1, 2, 1.65))
sketch6.addConstraint(Sketcher.Constraint("DistanceY", 0, 2, 0, 1, 11.71))
sketch6.addConstraint(Sketcher.Constraint("DistanceY", -1, 1, 0, 2, 17.5))
sketch6.addConstraint(Sketcher.Constraint("DistanceX", -1, 1, 0, 2, 119.248271))
sketch6.setExpression("Constraints[8]", "Params.sketch6_width")
sketch6.setExpression("Constraints[9]", "Params.sketch6_height")
revolution6 = doc.addObject("PartDesign::Revolution", "Revolution005")
body6.addObject(revolution6)
revolution6.Profile = sketch6
revolution6.ReferenceAxis = (sketch6, ["H_Axis"])
revolution6.setExpression("Angle", "Params.revolution6_angle")
body7 = doc.addObject("PartDesign::Body", "Body006")

# Sketch on XZ plane
sketch7 = doc.addObject("Sketcher::SketchObject", "Sketch006")
body7.addObject(sketch7)
sketch7.AttachmentSupport = (doc.getObject("XZ_Plane006"), [""])
sketch7.MapMode = "FlatFace"
sketch7.addGeometry(Part.LineSegment(V(126.7, 27, 0), V(126.7, 17.5, 0)), False)
sketch7.addGeometry(Part.LineSegment(V(126.7, 17.5, 0), V(128.7, 17.5, 0)), False)
sketch7.addGeometry(Part.LineSegment(V(128.7, 17.5, 0), V(128.7, 27, 0)), False)
sketch7.addGeometry(Part.LineSegment(V(128.7, 27, 0), V(126.7, 27, 0)), False)
sketch7.addConstraint(Sketcher.Constraint("Coincident", 0, 2, 1, 1))
sketch7.addConstraint(Sketcher.Constraint("Coincident", 1, 2, 2, 1))
sketch7.addConstraint(Sketcher.Constraint("Coincident", 2, 2, 3, 1))
sketch7.addConstraint(Sketcher.Constraint("Coincident", 3, 2, 0, 1))
sketch7.addConstraint(Sketcher.Constraint("Vertical", 0))
sketch7.addConstraint(Sketcher.Constraint("Horizontal", 1))
sketch7.addConstraint(Sketcher.Constraint("Vertical", 2))
sketch7.addConstraint(Sketcher.Constraint("Horizontal", 3))
sketch7.addConstraint(Sketcher.Constraint("DistanceY", 0, 2, 0, 1, 9.5))
sketch7.addConstraint(Sketcher.Constraint("DistanceY", -1, 1, 2, 2, 27.0))
sketch7.addConstraint(Sketcher.Constraint("DistanceX", 1, 1, 1, 2, 1.931026))
sketch7.addConstraint(Sketcher.Constraint("DistanceX", -1, 1, 0, 2, 126.736291))
sketch7.setExpression("Constraints[8]", "Params.sketch7_height")
revolution7 = doc.addObject("PartDesign::Revolution", "Revolution006")
body7.addObject(revolution7)
revolution7.Profile = sketch7
revolution7.ReferenceAxis = (sketch7, ["H_Axis"])
revolution7.setExpression("Angle", "Params.revolution7_angle")
body8 = doc.addObject("PartDesign::Body", "Body007")

# Sketch on XZ plane
sketch8 = doc.addObject("Sketcher::SketchObject", "Sketch007")
body8.addObject(sketch8)
sketch8.AttachmentSupport = (doc.getObject("XZ_Plane007"), [""])
sketch8.MapMode = "FlatFace"
sketch8.addGeometry(Part.LineSegment(V(168, 25.2, 0), V(168, 19.4, 0)), False)
sketch8.addGeometry(Part.LineSegment(V(168, 19.4, 0), V(165.7, 19.4, 0)), False)
sketch8.addGeometry(Part.LineSegment(V(165.7, 19.4, 0), V(165.7, 17.5, 0)), False)
sketch8.addGeometry(Part.LineSegment(V(165.7, 17.5, 0), V(168.7, 17.5, 0)), False)
sketch8.addGeometry(Part.LineSegment(V(168.7, 17.5, 0), V(168.7, 18.6, 0)), False)
sketch8.addGeometry(Part.LineSegment(V(168.7, 18.6, 0), V(169.7, 18.6, 0)), False)
sketch8.addGeometry(Part.LineSegment(V(169.7, 18.6, 0), V(169.7, 25.2, 0)), False)
sketch8.addGeometry(Part.LineSegment(V(169.7, 25.2, 0), V(168, 25.2, 0)), False)
sketch8.addConstraint(Sketcher.Constraint("Coincident", 0, 2, 1, 1))
sketch8.addConstraint(Sketcher.Constraint("Coincident", 1, 2, 2, 1))
sketch8.addConstraint(Sketcher.Constraint("Coincident", 2, 2, 3, 1))
sketch8.addConstraint(Sketcher.Constraint("Coincident", 3, 2, 4, 1))
sketch8.addConstraint(Sketcher.Constraint("Coincident", 4, 2, 5, 1))
sketch8.addConstraint(Sketcher.Constraint("Coincident", 5, 2, 6, 1))
sketch8.addConstraint(Sketcher.Constraint("Coincident", 6, 2, 7, 1))
sketch8.addConstraint(Sketcher.Constraint("Coincident", 7, 2, 0, 1))
sketch8.addConstraint(Sketcher.Constraint("Vertical", 0))
sketch8.addConstraint(Sketcher.Constraint("Horizontal", 1))
sketch8.addConstraint(Sketcher.Constraint("Vertical", 2))
sketch8.addConstraint(Sketcher.Constraint("Horizontal", 3))
sketch8.addConstraint(Sketcher.Constraint("Vertical", 4))
sketch8.addConstraint(Sketcher.Constraint("Horizontal", 5))
sketch8.addConstraint(Sketcher.Constraint("Vertical", 6))
sketch8.addConstraint(Sketcher.Constraint("Horizontal", 7))
sketch8.addConstraint(Sketcher.Constraint("DistanceX", 5, 1, 5, 2, 1.0))
sketch8.addConstraint(Sketcher.Constraint("DistanceX", 1, 2, 1, 1, 2.29))
sketch8.addConstraint(Sketcher.Constraint("DistanceX", 3, 1, 3, 2, 3.03))
sketch8.addConstraint(Sketcher.Constraint("DistanceY", 4, 1, 4, 2, 1.08))
sketch8.addConstraint(Sketcher.Constraint("DistanceY", 6, 1, 6, 2, 6.62))
sketch8.addConstraint(Sketcher.Constraint("DistanceY", -1, 1, 2, 2, 17.5))
sketch8.addConstraint(Sketcher.Constraint("DistanceY", 0, 2, 0, 1, 5.849095))
sketch8.addConstraint(Sketcher.Constraint("DistanceX", -1, 1, 0, 2, 167.978864))
sketch8.setExpression("Constraints[16]", "Params.sketch8_width")
sketch8.setExpression("Constraints[17]", "Params.sketch8_width2")
sketch8.setExpression("Constraints[18]", "Params.sketch8_width3")
sketch8.setExpression("Constraints[19]", "Params.sketch8_height")
sketch8.setExpression("Constraints[20]", "Params.sketch8_height2")
revolution8 = doc.addObject("PartDesign::Revolution", "Revolution007")
body8.addObject(revolution8)
revolution8.Profile = sketch8
revolution8.ReferenceAxis = (sketch8, ["H_Axis"])
revolution8.setExpression("Angle", "Params.revolution8_angle")
body9 = doc.addObject("PartDesign::Body", "Body008")

# Sketch on XZ plane
sketch9 = doc.addObject("Sketcher::SketchObject", "Sketch008")
body9.addObject(sketch9)
sketch9.AttachmentSupport = (doc.getObject("XZ_Plane008"), [""])
sketch9.MapMode = "FlatFace"
sketch9.addGeometry(Part.LineSegment(V(180.45, 23.14, 0), V(180.45, 18.37, 0)), False)
sketch9.addGeometry(Part.LineSegment(V(180.45, 18.37, 0), V(177.21, 18.37, 0)), False)
sketch9.addGeometry(Part.LineSegment(V(177.21, 18.37, 0), V(177.21, 17.5, 0)), False)
sketch9.addGeometry(Part.LineSegment(V(177.21, 17.5, 0), V(180.58, 17.5, 0)), False)
sketch9.addGeometry(Part.LineSegment(V(180.58, 17.5, 0), V(180.58, 15.96, 0)), False)
sketch9.addGeometry(Part.LineSegment(V(180.58, 15.96, 0), V(182.45, 15.96, 0)), False)
sketch9.addGeometry(Part.LineSegment(V(182.45, 15.96, 0), V(182.45, 18.09, 0)), False)
sketch9.addGeometry(Part.LineSegment(V(182.45, 18.09, 0), V(182.29, 18.09, 0)), False)
sketch9.addGeometry(Part.LineSegment(V(182.29, 18.09, 0), V(182.29, 23.14, 0)), False)
sketch9.addGeometry(Part.LineSegment(V(182.29, 23.14, 0), V(180.45, 23.14, 0)), False)
sketch9.addConstraint(Sketcher.Constraint("Coincident", 0, 2, 1, 1))
sketch9.addConstraint(Sketcher.Constraint("Coincident", 1, 2, 2, 1))
sketch9.addConstraint(Sketcher.Constraint("Coincident", 2, 2, 3, 1))
sketch9.addConstraint(Sketcher.Constraint("Coincident", 3, 2, 4, 1))
sketch9.addConstraint(Sketcher.Constraint("Coincident", 4, 2, 5, 1))
sketch9.addConstraint(Sketcher.Constraint("Coincident", 5, 2, 6, 1))
sketch9.addConstraint(Sketcher.Constraint("Coincident", 6, 2, 7, 1))
sketch9.addConstraint(Sketcher.Constraint("Coincident", 7, 2, 8, 1))
sketch9.addConstraint(Sketcher.Constraint("Coincident", 8, 2, 9, 1))
sketch9.addConstraint(Sketcher.Constraint("Coincident", 9, 2, 0, 1))
sketch9.addConstraint(Sketcher.Constraint("Vertical", 0))
sketch9.addConstraint(Sketcher.Constraint("Horizontal", 1))
sketch9.addConstraint(Sketcher.Constraint("Vertical", 2))
sketch9.addConstraint(Sketcher.Constraint("Horizontal", 3))
sketch9.addConstraint(Sketcher.Constraint("Vertical", 4))
sketch9.addConstraint(Sketcher.Constraint("Horizontal", 5))
sketch9.addConstraint(Sketcher.Constraint("Vertical", 6))
sketch9.addConstraint(Sketcher.Constraint("Horizontal", 7))
sketch9.addConstraint(Sketcher.Constraint("Vertical", 8))
sketch9.addConstraint(Sketcher.Constraint("Horizontal", 9))
sketch9.addConstraint(Sketcher.Constraint("DistanceX", 0, 2, 5, 2, 2.0))
sketch9.addConstraint(Sketcher.Constraint("DistanceX", 1, 2, 1, 1, 3.24))
sketch9.addConstraint(Sketcher.Constraint("DistanceX", 3, 1, 3, 2, 3.37))
sketch9.addConstraint(Sketcher.Constraint("DistanceX", 7, 2, 7, 1, 0.16))
sketch9.addConstraint(Sketcher.Constraint("DistanceY", 2, 2, 2, 1, 0.87))
sketch9.addConstraint(Sketcher.Constraint("DistanceY", 6, 1, 6, 2, 2.13))
sketch9.addConstraint(Sketcher.Constraint("DistanceY", 8, 1, 8, 2, 5.04))
sketch9.addConstraint(Sketcher.Constraint("DistanceY", -1, 1, 2, 2, 17.5))
sketch9.addConstraint(Sketcher.Constraint("DistanceY", 0, 2, 0, 1, 4.765))
sketch9.addConstraint(Sketcher.Constraint("DistanceX", -1, 1, 0, 2, 180.451046))
sketch9.setExpression("Constraints[21]", "Params.sketch9_width")
sketch9.setExpression("Constraints[22]", "Params.sketch9_width2")
sketch9.setExpression("Constraints[23]", "Params.sketch9_width3")
sketch9.setExpression("Constraints[24]", "Params.sketch9_height")
sketch9.setExpression("Constraints[25]", "Params.sketch9_height2")
revolution9 = doc.addObject("PartDesign::Revolution", "Revolution008")
body9.addObject(revolution9)
revolution9.Profile = sketch9
revolution9.ReferenceAxis = (sketch9, ["H_Axis"])
revolution9.setExpression("Angle", "Params.revolution9_angle")

doc.recompute()
